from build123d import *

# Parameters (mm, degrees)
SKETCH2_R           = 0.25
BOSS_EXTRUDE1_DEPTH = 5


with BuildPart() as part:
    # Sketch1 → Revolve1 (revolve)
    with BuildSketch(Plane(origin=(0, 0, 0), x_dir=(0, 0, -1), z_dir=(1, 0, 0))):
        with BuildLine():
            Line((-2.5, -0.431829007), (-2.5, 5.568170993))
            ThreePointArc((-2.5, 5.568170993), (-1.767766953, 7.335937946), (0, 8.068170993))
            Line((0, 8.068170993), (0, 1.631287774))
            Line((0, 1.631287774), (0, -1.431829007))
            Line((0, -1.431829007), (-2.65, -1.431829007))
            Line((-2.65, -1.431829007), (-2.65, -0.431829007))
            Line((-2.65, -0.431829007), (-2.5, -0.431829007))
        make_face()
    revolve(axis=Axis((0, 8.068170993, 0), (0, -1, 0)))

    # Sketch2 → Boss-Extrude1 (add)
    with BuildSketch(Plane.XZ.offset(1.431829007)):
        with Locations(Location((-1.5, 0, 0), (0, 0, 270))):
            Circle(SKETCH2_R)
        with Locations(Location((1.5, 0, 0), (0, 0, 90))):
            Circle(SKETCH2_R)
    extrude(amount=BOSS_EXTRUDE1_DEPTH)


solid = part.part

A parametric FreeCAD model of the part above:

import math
import FreeCAD as App
import Part
import Sketcher
Q = App.Units.Quantity

doc = App.newDocument("Part")
body = doc.addObject("PartDesign::Body", "Body")

# Sketch on YZ plane
sketch1 = body.newObject("Sketcher::SketchObject", "Sketch")
sketch1.AttachmentSupport = (doc.getObject("YZ_Plane"), [""])
sketch1.MapMode = "FlatFace"
sketch1.addGeometry([
    Part.LineSegment(App.Vector(5.57, 2.5, 0), App.Vector(-0.43, 2.5, 0)),  # 0
    Part.LineSegment(App.Vector(-0.43, 2.5, 0), App.Vector(-0.43, 2.65, 0)),  # 1
    Part.LineSegment(App.Vector(-0.43, 2.65, 0), App.Vector(-1.43, 2.65, 0)),  # 2
    Part.LineSegment(App.Vector(-1.43, 2.65, 0), App.Vector(-1.43, 0, 0)),  # 3
    Part.LineSegment(App.Vector(-1.43, 0, 0), App.Vector(8.07, 0, 0)),  # 4
    Part.ArcOfCircle(Part.Circle(App.Vector(5.57, 0, 0), App.Vector(0, 0, 1), 2.5), math.radians(0), math.radians(90)),  # 5
], False)
sketch1.addConstraint([
    Sketcher.Constraint("Coincident", 0, 2, 1, 1),
    Sketcher.Constraint("Coincident", 1, 2, 2, 1),
    Sketcher.Constraint("Coincident", 2, 2, 3, 1),
    Sketcher.Constraint("Coincident", 3, 2, 4, 1),
    Sketcher.Constraint("Coincident", 4, 2, 5, 1),
    Sketcher.Constraint("Tangent", 5, 2, 0, 1),
    Sketcher.Constraint("Horizontal", 0),
    Sketcher.Constraint("Vertical", 1),
    Sketcher.Constraint("Horizontal", 2),
    Sketcher.Constraint("Vertical", 3),
    Sketcher.Constraint("Horizontal", 4),
    Sketcher.Constraint("PointOnObject", 5, 3, -1),
    Sketcher.Constraint("PointOnObject", 3, 2, -1),
    Sketcher.Constraint("Radius", 5, Q("2.5 mm")),
    Sketcher.Constraint("DistanceX", 0, 2, 0, 1, Q("6 mm")),
    Sketcher.Constraint("DistanceX", 2, 2, 2, 1, Q("1 mm")),
    Sketcher.Constraint("DistanceY", 1, 1, 1, 2, Q("0.15 mm")),
    Sketcher.Constraint("DistanceX", -1, 1, 5, 3, Q("5.568171 mm")),
])
revolution = body.newObject("PartDesign::Revolution", "Revolution")
revolution.Profile = sketch1
revolution.ReferenceAxis = (sketch1, ["H_Axis"])
revolution.Angle = 360

# Sketch on XZ plane
sketch2 = body.newObject("Sketcher::SketchObject", "Sketch001")
sketch2.AttachmentSupport = (doc.getObject("XZ_Plane"), [""])
sketch2.MapMode = "FlatFace"
sketch2.AttachmentOffset = App.Placement(App.Vector(0, 0, 1.431829), App.Rotation())
sketch2.addGeometry([
    Part.Circle(App.Vector(-1.5, 0, 0), App.Vector(0, 0, 1), 0.25),
    Part.Circle(App.Vector(1.5, 0, 0), App.Vector(0, 0, 1), 0.25),
], False)
sketch2.addConstraint([
    Sketcher.Constraint("Equal", 0, 1),
    Sketcher.Constraint("Symmetric", 0, 3, 1, 3, -1, 1),
    Sketcher.Constraint("PointOnObject", 0, 3, -1),
    Sketcher.Constraint("Diameter", 0, Q("0.5 mm")),
    Sketcher.Constraint("DistanceX", 0, 3, 1, 3, Q("3 mm")),
])
pad1 = body.newObject("PartDesign::Pad", "Pad")
pad1.Profile = sketch2
pad1.Length = 5

doc.recompute()
